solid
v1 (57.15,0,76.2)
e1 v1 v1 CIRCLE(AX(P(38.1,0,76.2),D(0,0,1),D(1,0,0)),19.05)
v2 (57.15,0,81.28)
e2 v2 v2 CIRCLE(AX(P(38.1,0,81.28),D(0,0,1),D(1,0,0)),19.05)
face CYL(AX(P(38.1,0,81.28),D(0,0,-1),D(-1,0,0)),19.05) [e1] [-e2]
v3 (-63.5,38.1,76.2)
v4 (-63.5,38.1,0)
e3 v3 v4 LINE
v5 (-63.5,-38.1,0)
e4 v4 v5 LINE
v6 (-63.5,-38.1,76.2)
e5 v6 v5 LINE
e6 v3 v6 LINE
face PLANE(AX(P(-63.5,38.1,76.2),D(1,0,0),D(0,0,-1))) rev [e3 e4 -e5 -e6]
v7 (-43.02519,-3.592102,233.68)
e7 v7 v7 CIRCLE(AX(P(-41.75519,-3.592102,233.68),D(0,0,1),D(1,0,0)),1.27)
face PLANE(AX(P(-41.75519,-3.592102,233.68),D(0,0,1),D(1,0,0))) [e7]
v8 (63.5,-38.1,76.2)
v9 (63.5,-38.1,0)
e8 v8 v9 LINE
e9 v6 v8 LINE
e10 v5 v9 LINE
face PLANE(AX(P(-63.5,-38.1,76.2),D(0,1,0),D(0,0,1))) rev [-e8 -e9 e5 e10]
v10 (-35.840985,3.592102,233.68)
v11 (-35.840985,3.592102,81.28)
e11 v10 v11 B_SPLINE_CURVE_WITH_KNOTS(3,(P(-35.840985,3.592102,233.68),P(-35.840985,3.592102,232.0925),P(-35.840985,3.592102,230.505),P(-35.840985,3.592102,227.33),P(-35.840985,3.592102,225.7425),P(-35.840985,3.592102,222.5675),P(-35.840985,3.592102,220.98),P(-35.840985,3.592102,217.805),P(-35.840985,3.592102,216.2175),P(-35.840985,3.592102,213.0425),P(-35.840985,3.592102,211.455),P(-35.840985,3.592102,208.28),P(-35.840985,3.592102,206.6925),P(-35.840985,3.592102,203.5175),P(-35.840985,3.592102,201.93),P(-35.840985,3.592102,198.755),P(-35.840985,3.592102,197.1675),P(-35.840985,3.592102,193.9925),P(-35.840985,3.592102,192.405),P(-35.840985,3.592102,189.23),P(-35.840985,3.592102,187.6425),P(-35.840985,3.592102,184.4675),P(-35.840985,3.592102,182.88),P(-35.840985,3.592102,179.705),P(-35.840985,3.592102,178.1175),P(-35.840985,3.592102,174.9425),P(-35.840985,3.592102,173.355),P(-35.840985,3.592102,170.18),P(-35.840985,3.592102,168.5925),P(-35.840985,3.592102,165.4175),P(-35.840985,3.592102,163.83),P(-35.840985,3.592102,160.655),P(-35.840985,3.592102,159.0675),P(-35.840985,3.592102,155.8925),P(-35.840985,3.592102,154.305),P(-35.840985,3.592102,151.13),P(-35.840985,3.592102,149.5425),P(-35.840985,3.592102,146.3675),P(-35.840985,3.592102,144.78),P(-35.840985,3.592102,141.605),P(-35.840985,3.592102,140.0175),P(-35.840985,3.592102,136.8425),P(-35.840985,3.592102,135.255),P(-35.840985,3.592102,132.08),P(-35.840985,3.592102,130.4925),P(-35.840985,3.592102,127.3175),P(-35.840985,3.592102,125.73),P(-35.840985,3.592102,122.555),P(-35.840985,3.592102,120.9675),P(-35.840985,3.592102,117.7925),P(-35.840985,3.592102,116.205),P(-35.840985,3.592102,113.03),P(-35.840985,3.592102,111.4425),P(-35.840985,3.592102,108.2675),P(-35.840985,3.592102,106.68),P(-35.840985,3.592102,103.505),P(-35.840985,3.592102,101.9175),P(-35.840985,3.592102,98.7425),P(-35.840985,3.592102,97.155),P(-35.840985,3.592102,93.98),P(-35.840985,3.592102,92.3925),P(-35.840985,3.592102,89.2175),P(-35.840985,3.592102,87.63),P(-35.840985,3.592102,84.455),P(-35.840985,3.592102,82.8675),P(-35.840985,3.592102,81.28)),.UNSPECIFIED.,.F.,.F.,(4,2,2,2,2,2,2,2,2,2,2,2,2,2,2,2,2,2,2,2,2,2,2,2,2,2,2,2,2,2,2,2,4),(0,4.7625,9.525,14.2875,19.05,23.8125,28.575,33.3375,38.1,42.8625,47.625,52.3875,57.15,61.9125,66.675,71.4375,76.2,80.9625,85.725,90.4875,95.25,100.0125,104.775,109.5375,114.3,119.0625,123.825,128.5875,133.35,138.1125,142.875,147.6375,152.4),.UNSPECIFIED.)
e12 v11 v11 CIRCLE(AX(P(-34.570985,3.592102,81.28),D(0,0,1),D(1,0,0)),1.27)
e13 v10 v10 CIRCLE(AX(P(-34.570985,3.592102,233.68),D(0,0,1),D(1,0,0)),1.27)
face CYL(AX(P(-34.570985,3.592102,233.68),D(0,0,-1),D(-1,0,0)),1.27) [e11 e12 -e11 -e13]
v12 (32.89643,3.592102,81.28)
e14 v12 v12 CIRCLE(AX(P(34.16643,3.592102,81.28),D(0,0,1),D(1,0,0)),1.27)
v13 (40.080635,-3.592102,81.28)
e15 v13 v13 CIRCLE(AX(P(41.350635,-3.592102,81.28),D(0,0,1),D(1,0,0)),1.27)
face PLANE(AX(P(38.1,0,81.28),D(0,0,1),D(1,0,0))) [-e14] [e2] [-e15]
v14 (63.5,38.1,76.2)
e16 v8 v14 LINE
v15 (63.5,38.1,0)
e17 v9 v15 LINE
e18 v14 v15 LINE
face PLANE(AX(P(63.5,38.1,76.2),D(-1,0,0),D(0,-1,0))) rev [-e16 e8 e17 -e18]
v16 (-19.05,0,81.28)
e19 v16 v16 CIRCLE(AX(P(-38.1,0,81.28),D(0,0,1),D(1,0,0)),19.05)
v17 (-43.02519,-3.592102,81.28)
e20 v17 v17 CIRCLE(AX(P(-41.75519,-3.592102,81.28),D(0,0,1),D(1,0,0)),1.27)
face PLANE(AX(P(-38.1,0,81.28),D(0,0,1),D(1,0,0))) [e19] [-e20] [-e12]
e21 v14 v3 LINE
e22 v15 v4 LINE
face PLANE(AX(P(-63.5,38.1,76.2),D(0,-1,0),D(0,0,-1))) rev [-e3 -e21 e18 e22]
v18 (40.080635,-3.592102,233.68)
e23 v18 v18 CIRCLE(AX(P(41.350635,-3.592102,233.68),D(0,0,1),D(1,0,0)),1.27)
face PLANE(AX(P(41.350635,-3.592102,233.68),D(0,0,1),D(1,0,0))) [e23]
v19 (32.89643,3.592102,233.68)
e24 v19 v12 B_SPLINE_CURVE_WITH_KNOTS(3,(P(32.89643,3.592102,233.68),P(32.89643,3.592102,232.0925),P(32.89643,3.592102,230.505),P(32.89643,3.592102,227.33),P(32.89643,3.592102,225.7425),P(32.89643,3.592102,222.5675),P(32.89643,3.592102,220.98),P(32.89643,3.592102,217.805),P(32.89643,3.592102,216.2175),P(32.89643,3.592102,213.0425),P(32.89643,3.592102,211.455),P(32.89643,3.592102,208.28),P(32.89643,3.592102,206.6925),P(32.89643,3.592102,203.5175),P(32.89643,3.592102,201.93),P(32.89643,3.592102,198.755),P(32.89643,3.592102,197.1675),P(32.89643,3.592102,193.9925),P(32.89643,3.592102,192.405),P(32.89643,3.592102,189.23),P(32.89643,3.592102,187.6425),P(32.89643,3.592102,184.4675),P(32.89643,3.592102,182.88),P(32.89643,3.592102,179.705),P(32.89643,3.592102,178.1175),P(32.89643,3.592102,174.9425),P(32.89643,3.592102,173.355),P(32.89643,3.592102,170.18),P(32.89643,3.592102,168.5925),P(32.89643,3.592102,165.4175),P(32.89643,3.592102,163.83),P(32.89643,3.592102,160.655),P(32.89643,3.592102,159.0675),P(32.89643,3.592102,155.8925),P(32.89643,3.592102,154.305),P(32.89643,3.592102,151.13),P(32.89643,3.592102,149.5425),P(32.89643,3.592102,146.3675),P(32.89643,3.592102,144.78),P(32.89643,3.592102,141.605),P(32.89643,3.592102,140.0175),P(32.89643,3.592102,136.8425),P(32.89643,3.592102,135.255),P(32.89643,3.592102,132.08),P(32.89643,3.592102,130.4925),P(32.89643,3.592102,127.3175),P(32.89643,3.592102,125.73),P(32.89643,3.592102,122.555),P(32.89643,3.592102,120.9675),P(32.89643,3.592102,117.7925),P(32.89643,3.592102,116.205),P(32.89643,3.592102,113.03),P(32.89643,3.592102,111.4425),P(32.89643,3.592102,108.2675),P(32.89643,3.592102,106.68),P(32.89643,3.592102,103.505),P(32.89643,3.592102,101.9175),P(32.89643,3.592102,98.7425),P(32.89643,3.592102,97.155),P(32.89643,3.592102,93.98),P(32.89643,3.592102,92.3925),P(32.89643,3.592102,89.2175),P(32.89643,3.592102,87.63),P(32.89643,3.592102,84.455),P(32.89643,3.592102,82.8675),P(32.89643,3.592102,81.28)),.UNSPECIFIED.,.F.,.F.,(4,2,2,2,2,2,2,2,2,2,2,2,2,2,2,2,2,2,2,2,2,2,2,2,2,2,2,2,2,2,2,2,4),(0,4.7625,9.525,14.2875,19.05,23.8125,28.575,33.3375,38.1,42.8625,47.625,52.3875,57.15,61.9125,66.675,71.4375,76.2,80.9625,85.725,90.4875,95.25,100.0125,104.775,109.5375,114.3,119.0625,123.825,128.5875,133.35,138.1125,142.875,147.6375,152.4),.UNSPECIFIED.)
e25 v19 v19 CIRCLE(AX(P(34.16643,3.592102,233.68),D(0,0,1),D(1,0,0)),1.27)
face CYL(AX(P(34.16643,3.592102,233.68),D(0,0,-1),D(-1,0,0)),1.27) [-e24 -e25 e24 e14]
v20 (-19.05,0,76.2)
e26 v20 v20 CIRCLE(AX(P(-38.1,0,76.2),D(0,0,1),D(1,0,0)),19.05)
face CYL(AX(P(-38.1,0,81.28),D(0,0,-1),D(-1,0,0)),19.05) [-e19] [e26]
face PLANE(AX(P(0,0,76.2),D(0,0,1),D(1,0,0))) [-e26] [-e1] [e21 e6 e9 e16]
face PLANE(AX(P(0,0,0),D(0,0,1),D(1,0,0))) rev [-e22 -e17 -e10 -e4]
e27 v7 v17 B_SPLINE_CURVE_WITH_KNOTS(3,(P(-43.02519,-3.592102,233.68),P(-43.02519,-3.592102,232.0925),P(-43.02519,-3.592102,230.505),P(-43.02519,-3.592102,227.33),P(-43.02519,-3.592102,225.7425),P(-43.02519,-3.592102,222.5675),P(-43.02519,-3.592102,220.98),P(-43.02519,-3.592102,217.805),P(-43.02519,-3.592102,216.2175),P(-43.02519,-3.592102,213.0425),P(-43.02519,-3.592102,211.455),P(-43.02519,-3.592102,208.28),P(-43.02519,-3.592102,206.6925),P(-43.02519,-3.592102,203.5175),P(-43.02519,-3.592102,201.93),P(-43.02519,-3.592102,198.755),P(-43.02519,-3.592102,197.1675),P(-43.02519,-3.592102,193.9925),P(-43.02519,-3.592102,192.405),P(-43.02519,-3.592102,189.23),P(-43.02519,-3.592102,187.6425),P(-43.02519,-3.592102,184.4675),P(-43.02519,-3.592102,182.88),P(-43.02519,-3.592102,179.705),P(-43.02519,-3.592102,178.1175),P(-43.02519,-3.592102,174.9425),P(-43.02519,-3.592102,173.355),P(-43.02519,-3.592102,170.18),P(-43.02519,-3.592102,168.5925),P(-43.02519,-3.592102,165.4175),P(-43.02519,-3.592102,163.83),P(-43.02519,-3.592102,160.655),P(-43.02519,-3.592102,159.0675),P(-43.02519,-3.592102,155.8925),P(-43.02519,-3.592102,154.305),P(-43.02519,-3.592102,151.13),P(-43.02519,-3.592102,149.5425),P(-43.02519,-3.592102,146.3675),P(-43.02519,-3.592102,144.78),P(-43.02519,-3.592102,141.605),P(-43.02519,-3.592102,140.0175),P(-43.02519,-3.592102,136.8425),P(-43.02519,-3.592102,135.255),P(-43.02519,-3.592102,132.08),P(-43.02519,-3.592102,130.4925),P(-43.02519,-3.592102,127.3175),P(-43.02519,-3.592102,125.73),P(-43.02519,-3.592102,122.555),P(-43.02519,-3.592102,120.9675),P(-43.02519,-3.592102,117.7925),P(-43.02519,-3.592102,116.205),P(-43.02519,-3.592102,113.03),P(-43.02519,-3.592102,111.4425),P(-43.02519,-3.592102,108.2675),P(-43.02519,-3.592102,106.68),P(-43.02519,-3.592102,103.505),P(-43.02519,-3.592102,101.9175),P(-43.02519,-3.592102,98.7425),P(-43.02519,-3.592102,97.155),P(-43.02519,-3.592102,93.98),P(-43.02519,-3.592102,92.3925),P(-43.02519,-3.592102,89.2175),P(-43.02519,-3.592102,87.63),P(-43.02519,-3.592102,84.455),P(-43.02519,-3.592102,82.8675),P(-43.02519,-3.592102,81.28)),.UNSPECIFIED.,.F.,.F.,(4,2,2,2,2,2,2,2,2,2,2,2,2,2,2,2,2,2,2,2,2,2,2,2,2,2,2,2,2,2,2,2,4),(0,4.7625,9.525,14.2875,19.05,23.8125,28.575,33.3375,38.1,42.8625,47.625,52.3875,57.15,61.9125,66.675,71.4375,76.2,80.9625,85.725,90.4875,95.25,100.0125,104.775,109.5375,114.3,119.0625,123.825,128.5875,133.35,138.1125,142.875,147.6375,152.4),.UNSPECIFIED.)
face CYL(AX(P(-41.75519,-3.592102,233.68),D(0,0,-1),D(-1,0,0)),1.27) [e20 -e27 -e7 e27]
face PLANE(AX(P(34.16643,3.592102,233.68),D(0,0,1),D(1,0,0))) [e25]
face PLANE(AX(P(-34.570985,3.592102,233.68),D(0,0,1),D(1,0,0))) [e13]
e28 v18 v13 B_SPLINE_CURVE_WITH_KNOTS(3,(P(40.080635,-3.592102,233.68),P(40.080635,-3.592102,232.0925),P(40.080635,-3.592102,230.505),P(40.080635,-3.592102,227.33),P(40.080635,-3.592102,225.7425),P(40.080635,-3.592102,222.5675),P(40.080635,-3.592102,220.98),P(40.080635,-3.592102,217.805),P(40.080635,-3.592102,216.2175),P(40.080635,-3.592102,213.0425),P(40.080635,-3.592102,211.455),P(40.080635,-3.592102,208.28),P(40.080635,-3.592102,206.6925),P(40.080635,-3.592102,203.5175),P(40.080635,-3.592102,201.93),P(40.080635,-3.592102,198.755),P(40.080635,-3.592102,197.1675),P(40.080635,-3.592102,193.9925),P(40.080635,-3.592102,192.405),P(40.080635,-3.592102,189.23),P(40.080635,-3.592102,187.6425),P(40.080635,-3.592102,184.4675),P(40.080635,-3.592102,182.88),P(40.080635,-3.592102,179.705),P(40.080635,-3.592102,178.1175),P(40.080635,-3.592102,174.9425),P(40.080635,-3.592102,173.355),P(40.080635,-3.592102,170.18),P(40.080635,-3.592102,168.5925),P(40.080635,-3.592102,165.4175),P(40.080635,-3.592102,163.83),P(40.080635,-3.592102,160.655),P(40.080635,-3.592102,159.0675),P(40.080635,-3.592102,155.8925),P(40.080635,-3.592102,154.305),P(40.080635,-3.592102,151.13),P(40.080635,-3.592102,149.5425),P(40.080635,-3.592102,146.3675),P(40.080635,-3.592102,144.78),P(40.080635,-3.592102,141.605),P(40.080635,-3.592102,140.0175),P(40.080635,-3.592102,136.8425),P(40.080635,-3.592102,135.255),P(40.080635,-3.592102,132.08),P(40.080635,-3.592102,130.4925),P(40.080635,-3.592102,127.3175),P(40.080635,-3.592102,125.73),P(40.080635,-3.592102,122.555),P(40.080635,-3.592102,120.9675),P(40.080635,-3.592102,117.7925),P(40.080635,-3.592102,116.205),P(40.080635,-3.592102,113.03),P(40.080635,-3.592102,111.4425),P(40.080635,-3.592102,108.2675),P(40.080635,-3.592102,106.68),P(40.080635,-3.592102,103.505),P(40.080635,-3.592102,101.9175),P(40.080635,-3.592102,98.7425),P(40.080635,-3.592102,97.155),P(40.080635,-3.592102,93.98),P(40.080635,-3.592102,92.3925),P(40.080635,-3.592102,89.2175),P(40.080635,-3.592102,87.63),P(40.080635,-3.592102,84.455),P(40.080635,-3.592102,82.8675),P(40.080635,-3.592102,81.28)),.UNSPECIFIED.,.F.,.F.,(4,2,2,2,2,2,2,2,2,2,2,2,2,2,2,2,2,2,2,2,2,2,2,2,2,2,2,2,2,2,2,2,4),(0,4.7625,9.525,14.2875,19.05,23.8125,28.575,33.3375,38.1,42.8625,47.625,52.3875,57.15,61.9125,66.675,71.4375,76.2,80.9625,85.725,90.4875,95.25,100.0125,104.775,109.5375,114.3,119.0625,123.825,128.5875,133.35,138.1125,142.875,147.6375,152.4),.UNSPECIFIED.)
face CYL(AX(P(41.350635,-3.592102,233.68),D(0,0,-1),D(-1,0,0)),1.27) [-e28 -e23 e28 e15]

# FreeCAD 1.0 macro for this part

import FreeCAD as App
import Part
import Sketcher

V = App.Vector
Q = App.Units.Quantity

doc = App.newDocument("Part")
body = doc.addObject("PartDesign::Body", "Body")

sketch1 = body.newObject("Sketcher::SketchObject", "Sketch")
sketch1.AttachmentSupport = (doc.getObject("XY_Plane"), [""])
sketch1.MapMode = "FlatFace"
sketch1.addGeometry([
    Part.LineSegment(V(-64, 38, 0), V(-64, -38, 0)),
    Part.LineSegment(V(-64, -38, 0), V(64, -38, 0)),
    Part.LineSegment(V(64, -38, 0), V(64, 38, 0)),
    Part.LineSegment(V(64, 38, 0), V(-64, 38, 0)),
], False)
sketch1.addConstraint([
    Sketcher.Constraint("Coincident", 0, 2, 1, 1),
    Sketcher.Constraint("Coincident", 1, 2, 2, 1),
    Sketcher.Constraint("Coincident", 2, 2, 3, 1),
    Sketcher.Constraint("Coincident", 3, 2, 0, 1),
    Sketcher.Constraint("Vertical", 0),
    Sketcher.Constraint("Horizontal", 1),
    Sketcher.Constraint("Vertical", 2),
    Sketcher.Constraint("Horizontal", 3),
    Sketcher.Constraint("Symmetric", 0, 2, 2, 2, -1, 1),
    Sketcher.Constraint("DistanceX", 1, 1, 1, 2, Q("5 in")),
    Sketcher.Constraint("DistanceY", 0, 2, 0, 1, Q("3 in")),
])
pad1 = body.newObject("PartDesign::Pad", "Pad")
pad1.Profile = sketch1
pad1.Length = Q("3 in")

sketch2 = body.newObject("Sketcher::SketchObject", "Sketch001")
sketch2.AttachmentSupport = (doc.getObject("XY_Plane"), [""])
sketch2.MapMode = "FlatFace"
sketch2.AttachmentOffset = App.Placement(V(0, 0, 3 * 25.4), App.Rotation())
sketch2.addGeometry([
    Part.Circle(V(38, 0, 0), V(0, 0, 1), 19),
    Part.Circle(V(-38, 0, 0), V(0, 0, 1), 19),
], False)
sketch2.addConstraint([
    Sketcher.Constraint("Equal", 0, 1),
    Sketcher.Constraint("Symmetric", 0, 3, 1, 3, -1, 1),
    Sketcher.Constraint("PointOnObject", 0, 3, -1),
    Sketcher.Constraint("Diameter", 0, Q("1.5 in")),
    Sketcher.Constraint("DistanceX", 1, 3, 0, 3, Q("3 in")),
])
pad2 = body.newObject("PartDesign::Pad", "Pad001")
pad2.Profile = sketch2
pad2.Length = Q("0.2 in")

sketch3 = body.newObject("Sketcher::SketchObject", "Sketch002")
sketch3.AttachmentSupport = (doc.getObject("XY_Plane"), [""])
sketch3.MapMode = "FlatFace"
sketch3.AttachmentOffset = App.Placement(V(0, 0, 3.2 * 25.4), App.Rotation())
sketch3.addGeometry([
    Part.Circle(V(41.4, -3.6, 0), V(0, 0, 1), 1.3),
    Part.Circle(V(34.2, 3.6, 0), V(0, 0, 1), 1.3),
    Part.Circle(V(-41.8, -3.6, 0), V(0, 0, 1), 1.3),
    Part.Circle(V(-34.6, 3.6, 0), V(0, 0, 1), 1.3),
], False)
sketch3.addConstraint([
    Sketcher.Constraint("Equal", 0, 1),
    Sketcher.Constraint("Equal", 1, 2),
    Sketcher.Constraint("Equal", 2, 3),
    Sketcher.Constraint("Horizontal", 0, 3, 2, 3),
    Sketcher.Constraint("Horizontal", 1, 3, 3, 3),
    Sketcher.Constraint("Diameter", 0, Q("0.1 in")),
    Sketcher.Constraint("DistanceX", -1, 1, 1, 3, Q("34.16643 mm")),
    Sketcher.Constraint("DistanceX", 2, 3, -1, 1, Q("41.75519 mm")),
    Sketcher.Constraint("DistanceX", 3, 3, 0, 3, Q("75.92162 mm")),
    Sketcher.Constraint("DistanceX", -1, 1, 0, 3, Q("41.350635 mm")),
    Sketcher.Constraint("DistanceY", 0, 3, -1, 1, Q("3.592102 mm")),
    Sketcher.Constraint("DistanceY", -1, 1, 1, 3, Q("3.592102 mm")),
])
pad3 = body.newObject("PartDesign::Pad", "Pad002")
pad3.Profile = sketch3
pad3.Length = Q("6 in")

doc.recompute()
